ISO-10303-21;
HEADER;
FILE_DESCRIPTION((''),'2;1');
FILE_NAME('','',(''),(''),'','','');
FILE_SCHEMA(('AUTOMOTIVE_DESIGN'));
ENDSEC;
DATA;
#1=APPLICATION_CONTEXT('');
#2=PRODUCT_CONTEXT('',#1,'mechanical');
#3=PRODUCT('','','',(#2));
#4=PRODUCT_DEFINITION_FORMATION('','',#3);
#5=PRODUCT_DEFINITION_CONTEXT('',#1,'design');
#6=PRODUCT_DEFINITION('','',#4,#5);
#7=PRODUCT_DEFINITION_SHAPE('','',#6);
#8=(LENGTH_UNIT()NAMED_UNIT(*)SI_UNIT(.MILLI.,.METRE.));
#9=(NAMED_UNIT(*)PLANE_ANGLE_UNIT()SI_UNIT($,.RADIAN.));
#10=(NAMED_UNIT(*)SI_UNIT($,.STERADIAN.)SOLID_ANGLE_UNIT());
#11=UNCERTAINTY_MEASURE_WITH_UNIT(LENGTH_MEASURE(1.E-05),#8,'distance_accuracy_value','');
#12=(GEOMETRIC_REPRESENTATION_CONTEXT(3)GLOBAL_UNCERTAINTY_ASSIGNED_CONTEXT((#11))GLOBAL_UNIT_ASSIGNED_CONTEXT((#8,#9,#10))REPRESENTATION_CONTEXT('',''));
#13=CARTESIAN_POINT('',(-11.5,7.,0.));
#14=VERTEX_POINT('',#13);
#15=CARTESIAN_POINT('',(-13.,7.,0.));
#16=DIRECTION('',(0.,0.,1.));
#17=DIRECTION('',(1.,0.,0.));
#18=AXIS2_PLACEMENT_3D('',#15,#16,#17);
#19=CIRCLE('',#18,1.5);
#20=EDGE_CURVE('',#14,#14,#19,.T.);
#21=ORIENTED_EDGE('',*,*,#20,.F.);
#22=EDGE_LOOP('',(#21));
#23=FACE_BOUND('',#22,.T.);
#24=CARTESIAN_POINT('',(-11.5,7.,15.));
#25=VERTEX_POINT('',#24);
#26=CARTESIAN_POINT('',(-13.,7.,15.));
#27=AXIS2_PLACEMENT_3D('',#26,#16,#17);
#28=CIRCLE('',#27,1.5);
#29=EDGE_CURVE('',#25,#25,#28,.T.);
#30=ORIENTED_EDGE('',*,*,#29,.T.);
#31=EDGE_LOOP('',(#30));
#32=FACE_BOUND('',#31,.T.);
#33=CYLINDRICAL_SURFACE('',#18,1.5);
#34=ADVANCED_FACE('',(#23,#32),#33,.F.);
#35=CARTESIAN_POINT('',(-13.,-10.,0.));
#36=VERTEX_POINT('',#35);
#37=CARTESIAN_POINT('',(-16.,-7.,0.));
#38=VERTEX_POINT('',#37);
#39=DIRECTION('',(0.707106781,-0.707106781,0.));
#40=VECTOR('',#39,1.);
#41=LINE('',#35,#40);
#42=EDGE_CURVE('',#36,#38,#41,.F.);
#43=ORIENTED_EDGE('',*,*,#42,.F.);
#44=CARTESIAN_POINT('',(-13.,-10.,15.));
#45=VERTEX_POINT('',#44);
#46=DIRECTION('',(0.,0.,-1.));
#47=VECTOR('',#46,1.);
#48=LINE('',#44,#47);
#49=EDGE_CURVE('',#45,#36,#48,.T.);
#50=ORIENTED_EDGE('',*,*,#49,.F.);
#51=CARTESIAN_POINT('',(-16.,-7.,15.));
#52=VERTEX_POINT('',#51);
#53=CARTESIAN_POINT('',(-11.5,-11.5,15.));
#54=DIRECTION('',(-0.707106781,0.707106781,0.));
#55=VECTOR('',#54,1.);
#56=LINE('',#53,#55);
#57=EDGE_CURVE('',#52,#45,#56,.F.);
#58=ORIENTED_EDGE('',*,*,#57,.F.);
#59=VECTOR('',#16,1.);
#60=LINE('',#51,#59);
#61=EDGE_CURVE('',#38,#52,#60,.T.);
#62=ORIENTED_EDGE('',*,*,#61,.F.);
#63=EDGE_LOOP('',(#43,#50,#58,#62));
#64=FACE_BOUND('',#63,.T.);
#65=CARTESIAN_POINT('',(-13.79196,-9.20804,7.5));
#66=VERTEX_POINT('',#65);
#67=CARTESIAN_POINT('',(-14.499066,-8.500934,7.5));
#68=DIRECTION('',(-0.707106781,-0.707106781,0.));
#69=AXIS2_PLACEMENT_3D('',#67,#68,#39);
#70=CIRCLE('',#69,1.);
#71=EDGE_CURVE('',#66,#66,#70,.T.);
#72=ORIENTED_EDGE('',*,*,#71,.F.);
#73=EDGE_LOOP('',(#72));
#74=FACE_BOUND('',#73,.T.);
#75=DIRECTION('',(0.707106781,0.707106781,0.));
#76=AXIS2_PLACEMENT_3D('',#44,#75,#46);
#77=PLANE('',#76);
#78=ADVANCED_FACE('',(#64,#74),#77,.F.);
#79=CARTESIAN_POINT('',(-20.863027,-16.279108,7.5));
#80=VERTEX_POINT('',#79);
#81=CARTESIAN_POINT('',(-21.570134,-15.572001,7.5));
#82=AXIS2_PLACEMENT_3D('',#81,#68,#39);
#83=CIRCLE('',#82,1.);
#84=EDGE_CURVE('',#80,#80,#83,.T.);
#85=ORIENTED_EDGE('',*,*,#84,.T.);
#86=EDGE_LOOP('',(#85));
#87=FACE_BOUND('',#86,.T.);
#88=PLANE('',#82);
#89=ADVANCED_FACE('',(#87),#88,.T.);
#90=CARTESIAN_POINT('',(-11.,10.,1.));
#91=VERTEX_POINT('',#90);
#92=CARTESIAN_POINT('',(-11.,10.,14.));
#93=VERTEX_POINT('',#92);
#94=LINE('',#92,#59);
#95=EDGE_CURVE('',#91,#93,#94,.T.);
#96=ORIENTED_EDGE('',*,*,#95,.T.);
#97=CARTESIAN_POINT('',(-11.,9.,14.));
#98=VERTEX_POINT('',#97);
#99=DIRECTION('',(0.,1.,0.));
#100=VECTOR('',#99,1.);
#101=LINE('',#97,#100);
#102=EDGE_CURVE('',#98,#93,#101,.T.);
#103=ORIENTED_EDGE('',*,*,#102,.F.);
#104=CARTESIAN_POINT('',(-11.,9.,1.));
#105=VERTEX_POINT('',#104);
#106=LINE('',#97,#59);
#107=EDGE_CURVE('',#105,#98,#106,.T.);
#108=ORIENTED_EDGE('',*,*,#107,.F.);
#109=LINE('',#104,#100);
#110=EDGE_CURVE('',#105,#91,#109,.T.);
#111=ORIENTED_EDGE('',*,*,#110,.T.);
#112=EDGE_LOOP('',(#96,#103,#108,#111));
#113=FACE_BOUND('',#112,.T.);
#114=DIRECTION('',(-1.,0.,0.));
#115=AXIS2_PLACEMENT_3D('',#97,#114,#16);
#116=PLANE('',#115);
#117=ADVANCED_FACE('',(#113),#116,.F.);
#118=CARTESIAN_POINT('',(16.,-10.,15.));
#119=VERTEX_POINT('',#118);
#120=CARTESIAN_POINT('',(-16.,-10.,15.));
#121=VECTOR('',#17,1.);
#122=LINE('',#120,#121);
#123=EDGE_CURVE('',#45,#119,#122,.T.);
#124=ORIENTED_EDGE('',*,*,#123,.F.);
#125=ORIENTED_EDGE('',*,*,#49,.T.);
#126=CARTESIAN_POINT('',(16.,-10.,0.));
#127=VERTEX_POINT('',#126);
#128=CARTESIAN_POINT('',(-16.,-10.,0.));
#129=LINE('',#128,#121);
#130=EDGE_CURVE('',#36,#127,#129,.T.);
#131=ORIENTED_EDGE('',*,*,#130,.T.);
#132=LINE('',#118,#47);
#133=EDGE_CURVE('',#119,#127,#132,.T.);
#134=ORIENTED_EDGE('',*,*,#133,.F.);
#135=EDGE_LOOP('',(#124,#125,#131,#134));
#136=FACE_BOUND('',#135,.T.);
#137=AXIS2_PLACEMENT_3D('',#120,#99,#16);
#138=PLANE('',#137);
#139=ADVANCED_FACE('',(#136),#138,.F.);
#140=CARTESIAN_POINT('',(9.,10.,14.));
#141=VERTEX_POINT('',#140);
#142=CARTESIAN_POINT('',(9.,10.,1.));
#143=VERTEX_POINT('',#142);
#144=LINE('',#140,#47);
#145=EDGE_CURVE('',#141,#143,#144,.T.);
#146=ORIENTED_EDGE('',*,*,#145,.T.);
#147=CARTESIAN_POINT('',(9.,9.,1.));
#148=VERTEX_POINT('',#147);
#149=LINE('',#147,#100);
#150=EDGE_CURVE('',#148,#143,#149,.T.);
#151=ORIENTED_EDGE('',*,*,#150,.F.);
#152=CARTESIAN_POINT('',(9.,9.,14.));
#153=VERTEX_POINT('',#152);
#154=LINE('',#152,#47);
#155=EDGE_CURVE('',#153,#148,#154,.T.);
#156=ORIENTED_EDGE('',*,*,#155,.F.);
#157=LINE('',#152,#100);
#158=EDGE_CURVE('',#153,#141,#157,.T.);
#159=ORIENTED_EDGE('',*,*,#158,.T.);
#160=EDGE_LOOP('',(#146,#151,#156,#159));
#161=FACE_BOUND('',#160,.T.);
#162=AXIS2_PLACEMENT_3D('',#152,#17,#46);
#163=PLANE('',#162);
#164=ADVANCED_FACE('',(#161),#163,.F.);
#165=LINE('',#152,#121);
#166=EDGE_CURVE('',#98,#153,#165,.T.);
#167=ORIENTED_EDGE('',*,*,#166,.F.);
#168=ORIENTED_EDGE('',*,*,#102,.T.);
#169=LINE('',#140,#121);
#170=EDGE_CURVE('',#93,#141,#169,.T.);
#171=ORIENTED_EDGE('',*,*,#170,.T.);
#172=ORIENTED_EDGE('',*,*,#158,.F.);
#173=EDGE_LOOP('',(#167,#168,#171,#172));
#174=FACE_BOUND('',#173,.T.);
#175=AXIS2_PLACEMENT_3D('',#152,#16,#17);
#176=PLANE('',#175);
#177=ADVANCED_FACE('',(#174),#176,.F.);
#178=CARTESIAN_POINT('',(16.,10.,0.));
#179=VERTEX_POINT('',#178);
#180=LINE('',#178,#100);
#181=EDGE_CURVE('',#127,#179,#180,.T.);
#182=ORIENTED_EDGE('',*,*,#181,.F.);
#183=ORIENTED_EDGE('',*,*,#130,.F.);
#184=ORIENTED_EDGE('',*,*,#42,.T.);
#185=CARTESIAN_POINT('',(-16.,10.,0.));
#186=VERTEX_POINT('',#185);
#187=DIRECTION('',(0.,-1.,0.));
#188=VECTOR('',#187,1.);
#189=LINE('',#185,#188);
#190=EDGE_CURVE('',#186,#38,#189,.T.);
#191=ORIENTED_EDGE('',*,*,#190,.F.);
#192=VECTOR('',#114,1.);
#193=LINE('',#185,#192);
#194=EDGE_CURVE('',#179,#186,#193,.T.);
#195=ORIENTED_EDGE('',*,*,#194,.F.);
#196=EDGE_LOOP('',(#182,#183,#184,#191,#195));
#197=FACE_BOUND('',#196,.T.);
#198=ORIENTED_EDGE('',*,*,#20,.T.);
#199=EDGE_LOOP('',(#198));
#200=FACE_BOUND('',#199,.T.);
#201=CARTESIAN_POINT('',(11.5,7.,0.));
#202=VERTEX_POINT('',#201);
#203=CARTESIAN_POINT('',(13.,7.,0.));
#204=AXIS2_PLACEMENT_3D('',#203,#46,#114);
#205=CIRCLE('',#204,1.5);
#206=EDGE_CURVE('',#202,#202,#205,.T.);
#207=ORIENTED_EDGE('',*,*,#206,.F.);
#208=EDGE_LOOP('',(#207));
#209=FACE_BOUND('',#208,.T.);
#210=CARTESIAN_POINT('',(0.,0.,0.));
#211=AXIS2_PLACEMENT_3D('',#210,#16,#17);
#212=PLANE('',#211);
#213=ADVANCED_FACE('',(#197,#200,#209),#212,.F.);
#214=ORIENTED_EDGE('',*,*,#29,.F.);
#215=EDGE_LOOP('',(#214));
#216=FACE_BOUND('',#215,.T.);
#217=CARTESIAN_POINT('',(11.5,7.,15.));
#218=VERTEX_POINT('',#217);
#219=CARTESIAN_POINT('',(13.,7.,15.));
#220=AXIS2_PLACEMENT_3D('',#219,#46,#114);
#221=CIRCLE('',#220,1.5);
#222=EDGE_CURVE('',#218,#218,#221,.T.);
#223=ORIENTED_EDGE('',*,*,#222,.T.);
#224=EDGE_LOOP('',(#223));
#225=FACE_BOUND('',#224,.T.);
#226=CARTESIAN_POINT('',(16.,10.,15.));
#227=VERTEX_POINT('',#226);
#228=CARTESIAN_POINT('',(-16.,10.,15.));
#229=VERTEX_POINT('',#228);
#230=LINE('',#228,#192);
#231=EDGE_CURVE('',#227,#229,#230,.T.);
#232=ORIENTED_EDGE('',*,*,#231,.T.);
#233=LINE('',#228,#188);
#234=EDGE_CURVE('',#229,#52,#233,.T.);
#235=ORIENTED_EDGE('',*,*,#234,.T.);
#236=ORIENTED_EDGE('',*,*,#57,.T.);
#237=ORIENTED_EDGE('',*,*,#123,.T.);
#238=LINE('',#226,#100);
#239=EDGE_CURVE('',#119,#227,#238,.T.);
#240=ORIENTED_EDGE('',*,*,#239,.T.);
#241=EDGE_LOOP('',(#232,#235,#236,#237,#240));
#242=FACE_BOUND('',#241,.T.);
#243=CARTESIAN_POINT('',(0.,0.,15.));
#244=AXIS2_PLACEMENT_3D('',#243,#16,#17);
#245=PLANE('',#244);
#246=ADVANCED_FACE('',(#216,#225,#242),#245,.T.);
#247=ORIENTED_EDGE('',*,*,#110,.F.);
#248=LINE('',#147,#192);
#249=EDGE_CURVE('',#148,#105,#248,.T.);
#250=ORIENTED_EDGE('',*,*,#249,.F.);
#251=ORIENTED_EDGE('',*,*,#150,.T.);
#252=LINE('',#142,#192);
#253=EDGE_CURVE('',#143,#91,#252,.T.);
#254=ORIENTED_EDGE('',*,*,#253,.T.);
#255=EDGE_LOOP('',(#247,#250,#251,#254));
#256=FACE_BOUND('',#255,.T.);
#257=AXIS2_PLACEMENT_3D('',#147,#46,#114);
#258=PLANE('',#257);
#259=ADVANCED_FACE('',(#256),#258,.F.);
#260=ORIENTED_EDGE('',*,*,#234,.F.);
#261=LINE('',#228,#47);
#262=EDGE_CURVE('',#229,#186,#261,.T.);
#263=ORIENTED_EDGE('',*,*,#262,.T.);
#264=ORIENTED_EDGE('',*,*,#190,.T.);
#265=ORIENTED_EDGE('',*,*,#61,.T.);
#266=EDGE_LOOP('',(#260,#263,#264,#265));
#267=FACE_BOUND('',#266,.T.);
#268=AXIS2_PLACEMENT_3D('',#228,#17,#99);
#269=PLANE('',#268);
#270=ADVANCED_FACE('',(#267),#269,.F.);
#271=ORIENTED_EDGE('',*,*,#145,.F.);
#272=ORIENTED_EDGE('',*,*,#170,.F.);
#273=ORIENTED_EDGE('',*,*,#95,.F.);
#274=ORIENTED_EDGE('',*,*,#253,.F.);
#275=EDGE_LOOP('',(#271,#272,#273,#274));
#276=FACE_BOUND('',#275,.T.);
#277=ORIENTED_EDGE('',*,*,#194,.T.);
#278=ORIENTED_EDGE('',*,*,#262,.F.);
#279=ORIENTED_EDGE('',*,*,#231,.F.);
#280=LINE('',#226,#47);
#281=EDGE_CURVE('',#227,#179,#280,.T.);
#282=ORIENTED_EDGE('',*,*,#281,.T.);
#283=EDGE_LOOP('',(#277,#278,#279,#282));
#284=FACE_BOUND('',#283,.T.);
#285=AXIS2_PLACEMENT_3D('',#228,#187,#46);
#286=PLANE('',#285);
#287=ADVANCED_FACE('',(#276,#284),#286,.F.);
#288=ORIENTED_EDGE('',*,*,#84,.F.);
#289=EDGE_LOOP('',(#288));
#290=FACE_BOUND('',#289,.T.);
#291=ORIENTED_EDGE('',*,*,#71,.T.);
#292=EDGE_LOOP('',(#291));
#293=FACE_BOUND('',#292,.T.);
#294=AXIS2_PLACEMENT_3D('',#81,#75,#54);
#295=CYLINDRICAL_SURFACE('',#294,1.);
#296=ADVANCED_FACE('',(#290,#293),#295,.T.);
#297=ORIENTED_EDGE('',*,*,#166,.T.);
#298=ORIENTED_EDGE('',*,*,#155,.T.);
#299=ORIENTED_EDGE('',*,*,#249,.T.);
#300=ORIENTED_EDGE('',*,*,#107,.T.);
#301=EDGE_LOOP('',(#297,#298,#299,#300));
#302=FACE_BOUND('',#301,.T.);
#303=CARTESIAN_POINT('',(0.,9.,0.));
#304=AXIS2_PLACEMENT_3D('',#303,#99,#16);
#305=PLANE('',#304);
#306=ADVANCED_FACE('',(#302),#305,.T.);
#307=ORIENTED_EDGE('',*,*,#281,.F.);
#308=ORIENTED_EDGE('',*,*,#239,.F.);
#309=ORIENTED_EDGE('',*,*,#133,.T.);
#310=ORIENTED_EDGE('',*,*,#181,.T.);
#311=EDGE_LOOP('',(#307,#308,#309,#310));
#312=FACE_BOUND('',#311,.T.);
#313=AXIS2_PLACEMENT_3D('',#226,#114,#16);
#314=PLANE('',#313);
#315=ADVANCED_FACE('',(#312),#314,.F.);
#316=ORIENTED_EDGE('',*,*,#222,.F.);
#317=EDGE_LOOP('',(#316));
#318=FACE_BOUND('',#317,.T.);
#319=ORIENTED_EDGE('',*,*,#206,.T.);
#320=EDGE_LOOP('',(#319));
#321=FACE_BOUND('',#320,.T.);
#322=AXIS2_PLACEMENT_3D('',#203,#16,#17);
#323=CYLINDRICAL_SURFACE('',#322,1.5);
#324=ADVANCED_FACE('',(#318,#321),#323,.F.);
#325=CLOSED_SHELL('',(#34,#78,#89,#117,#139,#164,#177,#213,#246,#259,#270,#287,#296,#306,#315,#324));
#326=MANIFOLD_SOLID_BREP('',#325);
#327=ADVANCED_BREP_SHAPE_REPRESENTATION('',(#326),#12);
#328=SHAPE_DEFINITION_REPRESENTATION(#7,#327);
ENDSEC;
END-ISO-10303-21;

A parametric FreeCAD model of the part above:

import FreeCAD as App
import Part
import Sketcher

V = App.Vector
Q = App.Units.Quantity


def edges_at(feature, points):
    """Names of the edges that pass closest to the given points."""
    edges = feature.Shape.Edges
    near = lambda p: min(range(len(edges)), key=lambda i: edges[i].distToShape(Part.Vertex(*p))[0])
    return sorted({f"Edge{near(p) + 1}" for p in points})

doc = App.newDocument("Part")
body = doc.addObject("PartDesign::Body", "Body")

# Sketch on XY plane
sketch1 = doc.addObject("Sketcher::SketchObject", "Sketch")
body.addObject(sketch1)
sketch1.AttachmentSupport = (doc.XY_Plane, [""])
sketch1.MapMode = "FlatFace"
sketch1.addGeometry([
    Part.LineSegment(V(-16, 10, 0), V(-16, -10, 0)),
    Part.LineSegment(V(-16, -10, 0), V(16, -10, 0)),
    Part.LineSegment(V(16, -10, 0), V(16, 10, 0)),
    Part.LineSegment(V(16, 10, 0), V(-16, 10, 0)),
], False)
sketch1.addConstraint([
    Sketcher.Constraint("Coincident", 0, 2, 1, 1),
    Sketcher.Constraint("Coincident", 1, 2, 2, 1),
    Sketcher.Constraint("Coincident", 2, 2, 3, 1),
    Sketcher.Constraint("Coincident", 3, 2, 0, 1),
    Sketcher.Constraint("Vertical", 0),
    Sketcher.Constraint("Horizontal", 1),
    Sketcher.Constraint("Vertical", 2),
    Sketcher.Constraint("Horizontal", 3),
    Sketcher.Constraint("Symmetric", 0, 2, 2, 2, -1, 1),
    Sketcher.Constraint("DistanceX", 1, 1, 1, 2, Q("32 mm")),
    Sketcher.Constraint("DistanceY", 0, 2, 0, 1, Q("20 mm")),
])
pad1 = doc.addObject("PartDesign::Pad", "Pad")
body.addObject(pad1)
pad1.Profile = sketch1
pad1.Length = 15

# Sketch on XY plane
sketch2 = doc.addObject("Sketcher::SketchObject", "Sketch001")
body.addObject(sketch2)
sketch2.AttachmentSupport = (doc.XY_Plane, [""])
sketch2.MapMode = "FlatFace"
sketch2.AttachmentOffset = App.Placement(V(0, 0, 15), App.Rotation())
sketch2.addGeometry(Part.Circle(V(-13, 7, 0), V(0, 0, 1), 1.5), False)
sketch2.addConstraint([
    Sketcher.Constraint("Diameter", 0, Q("3 mm")),
    Sketcher.Constraint("DistanceX", 0, 3, -1, 1, Q("13 mm")),
    Sketcher.Constraint("DistanceY", -1, 1, 0, 3, Q("7 mm")),
])
pocket1 = doc.addObject("PartDesign::Pocket", "Pocket")
body.addObject(pocket1)
pocket1.Profile = sketch2
pocket1.Length = 15
doc.recompute()

mirrored = doc.addObject("PartDesign::Mirrored", "Mirrored")
body.addObject(mirrored)
mirrored.Originals = [pocket1]
mirrored.MirrorPlane = (doc.YZ_Plane, [""])
body.Tip = mirrored
doc.recompute()

chamfer = doc.addObject("PartDesign::Chamfer", "Chamfer")
body.addObject(chamfer)
chamfer.Base = (mirrored, edges_at(mirrored, [(-16, -10, 7.5)]))
chamfer.Size = 3

# Sketch on an angled plane
sketch3 = doc.addObject("Sketcher::SketchObject", "Sketch002")
body.addObject(sketch3)
sketch3.Placement = App.Placement(V(-11.5, -11.5, 0), App.Rotation(V(0, 0, 1), V(-0.707106781, 0.707106781, 0), V(-0.707106781, -0.707106781, 0), "ZXY"))
sketch3.addGeometry(Part.Circle(V(7.5, 4.24132, 0), V(0, 0, 1), 1), False)
sketch3.addConstraint([
    Sketcher.Constraint("Diameter", 0, Q("2 mm")),
    Sketcher.Constraint("DistanceX", -1, 1, 0, 3, Q("7.5 mm")),
    Sketcher.Constraint("DistanceY", -1, 1, 0, 3, Q("4.24132 mm")),
])
pad2 = doc.addObject("PartDesign::Pad", "Pad001")
body.addObject(pad2)
pad2.Profile = sketch3
pad2.Length = 10

# Sketch on XZ plane
sketch4 = doc.addObject("Sketcher::SketchObject", "Sketch003")
body.addObject(sketch4)
sketch4.AttachmentSupport = (doc.XZ_Plane, [""])
sketch4.MapMode = "FlatFace"
sketch4.AttachmentOffset = App.Placement(V(0, 0, -10), App.Rotation())
sketch4.addGeometry([
    Part.LineSegment(V(-11, 1, 0), V(-11, 14, 0)),
    Part.LineSegment(V(-11, 14, 0), V(9, 14, 0)),
    Part.LineSegment(V(9, 14, 0), V(9, 1, 0)),
    Part.LineSegment(V(9, 1, 0), V(-11, 1, 0)),
], False)
sketch4.addConstraint([
    Sketcher.Constraint("Coincident", 0, 2, 1, 1),
    Sketcher.Constraint("Coincident", 1, 2, 2, 1),
    Sketcher.Constraint("Coincident", 2, 2, 3, 1),
    Sketcher.Constraint("Coincident", 3, 2, 0, 1),
    Sketcher.Constraint("Vertical", 0),
    Sketcher.Constraint("Horizontal", 1),
    Sketcher.Constraint("Vertical", 2),
    Sketcher.Constraint("Horizontal", 3),
    Sketcher.Constraint("DistanceX", 1, 1, 1, 2, Q("20 mm")),
    Sketcher.Constraint("DistanceY", 0, 1, 0, 2, Q("13 mm")),
    Sketcher.Constraint("DistanceX", 0, 2, -1, 1, Q("11 mm")),
    Sketcher.Constraint("DistanceY", -1, 1, 0, 2, Q("14 mm")),
])
pocket2 = doc.addObject("PartDesign::Pocket", "Pocket001")
body.addObject(pocket2)
pocket2.Profile = sketch4
pocket2.Length = 1
pocket2.Reversed = True

doc.recompute()
